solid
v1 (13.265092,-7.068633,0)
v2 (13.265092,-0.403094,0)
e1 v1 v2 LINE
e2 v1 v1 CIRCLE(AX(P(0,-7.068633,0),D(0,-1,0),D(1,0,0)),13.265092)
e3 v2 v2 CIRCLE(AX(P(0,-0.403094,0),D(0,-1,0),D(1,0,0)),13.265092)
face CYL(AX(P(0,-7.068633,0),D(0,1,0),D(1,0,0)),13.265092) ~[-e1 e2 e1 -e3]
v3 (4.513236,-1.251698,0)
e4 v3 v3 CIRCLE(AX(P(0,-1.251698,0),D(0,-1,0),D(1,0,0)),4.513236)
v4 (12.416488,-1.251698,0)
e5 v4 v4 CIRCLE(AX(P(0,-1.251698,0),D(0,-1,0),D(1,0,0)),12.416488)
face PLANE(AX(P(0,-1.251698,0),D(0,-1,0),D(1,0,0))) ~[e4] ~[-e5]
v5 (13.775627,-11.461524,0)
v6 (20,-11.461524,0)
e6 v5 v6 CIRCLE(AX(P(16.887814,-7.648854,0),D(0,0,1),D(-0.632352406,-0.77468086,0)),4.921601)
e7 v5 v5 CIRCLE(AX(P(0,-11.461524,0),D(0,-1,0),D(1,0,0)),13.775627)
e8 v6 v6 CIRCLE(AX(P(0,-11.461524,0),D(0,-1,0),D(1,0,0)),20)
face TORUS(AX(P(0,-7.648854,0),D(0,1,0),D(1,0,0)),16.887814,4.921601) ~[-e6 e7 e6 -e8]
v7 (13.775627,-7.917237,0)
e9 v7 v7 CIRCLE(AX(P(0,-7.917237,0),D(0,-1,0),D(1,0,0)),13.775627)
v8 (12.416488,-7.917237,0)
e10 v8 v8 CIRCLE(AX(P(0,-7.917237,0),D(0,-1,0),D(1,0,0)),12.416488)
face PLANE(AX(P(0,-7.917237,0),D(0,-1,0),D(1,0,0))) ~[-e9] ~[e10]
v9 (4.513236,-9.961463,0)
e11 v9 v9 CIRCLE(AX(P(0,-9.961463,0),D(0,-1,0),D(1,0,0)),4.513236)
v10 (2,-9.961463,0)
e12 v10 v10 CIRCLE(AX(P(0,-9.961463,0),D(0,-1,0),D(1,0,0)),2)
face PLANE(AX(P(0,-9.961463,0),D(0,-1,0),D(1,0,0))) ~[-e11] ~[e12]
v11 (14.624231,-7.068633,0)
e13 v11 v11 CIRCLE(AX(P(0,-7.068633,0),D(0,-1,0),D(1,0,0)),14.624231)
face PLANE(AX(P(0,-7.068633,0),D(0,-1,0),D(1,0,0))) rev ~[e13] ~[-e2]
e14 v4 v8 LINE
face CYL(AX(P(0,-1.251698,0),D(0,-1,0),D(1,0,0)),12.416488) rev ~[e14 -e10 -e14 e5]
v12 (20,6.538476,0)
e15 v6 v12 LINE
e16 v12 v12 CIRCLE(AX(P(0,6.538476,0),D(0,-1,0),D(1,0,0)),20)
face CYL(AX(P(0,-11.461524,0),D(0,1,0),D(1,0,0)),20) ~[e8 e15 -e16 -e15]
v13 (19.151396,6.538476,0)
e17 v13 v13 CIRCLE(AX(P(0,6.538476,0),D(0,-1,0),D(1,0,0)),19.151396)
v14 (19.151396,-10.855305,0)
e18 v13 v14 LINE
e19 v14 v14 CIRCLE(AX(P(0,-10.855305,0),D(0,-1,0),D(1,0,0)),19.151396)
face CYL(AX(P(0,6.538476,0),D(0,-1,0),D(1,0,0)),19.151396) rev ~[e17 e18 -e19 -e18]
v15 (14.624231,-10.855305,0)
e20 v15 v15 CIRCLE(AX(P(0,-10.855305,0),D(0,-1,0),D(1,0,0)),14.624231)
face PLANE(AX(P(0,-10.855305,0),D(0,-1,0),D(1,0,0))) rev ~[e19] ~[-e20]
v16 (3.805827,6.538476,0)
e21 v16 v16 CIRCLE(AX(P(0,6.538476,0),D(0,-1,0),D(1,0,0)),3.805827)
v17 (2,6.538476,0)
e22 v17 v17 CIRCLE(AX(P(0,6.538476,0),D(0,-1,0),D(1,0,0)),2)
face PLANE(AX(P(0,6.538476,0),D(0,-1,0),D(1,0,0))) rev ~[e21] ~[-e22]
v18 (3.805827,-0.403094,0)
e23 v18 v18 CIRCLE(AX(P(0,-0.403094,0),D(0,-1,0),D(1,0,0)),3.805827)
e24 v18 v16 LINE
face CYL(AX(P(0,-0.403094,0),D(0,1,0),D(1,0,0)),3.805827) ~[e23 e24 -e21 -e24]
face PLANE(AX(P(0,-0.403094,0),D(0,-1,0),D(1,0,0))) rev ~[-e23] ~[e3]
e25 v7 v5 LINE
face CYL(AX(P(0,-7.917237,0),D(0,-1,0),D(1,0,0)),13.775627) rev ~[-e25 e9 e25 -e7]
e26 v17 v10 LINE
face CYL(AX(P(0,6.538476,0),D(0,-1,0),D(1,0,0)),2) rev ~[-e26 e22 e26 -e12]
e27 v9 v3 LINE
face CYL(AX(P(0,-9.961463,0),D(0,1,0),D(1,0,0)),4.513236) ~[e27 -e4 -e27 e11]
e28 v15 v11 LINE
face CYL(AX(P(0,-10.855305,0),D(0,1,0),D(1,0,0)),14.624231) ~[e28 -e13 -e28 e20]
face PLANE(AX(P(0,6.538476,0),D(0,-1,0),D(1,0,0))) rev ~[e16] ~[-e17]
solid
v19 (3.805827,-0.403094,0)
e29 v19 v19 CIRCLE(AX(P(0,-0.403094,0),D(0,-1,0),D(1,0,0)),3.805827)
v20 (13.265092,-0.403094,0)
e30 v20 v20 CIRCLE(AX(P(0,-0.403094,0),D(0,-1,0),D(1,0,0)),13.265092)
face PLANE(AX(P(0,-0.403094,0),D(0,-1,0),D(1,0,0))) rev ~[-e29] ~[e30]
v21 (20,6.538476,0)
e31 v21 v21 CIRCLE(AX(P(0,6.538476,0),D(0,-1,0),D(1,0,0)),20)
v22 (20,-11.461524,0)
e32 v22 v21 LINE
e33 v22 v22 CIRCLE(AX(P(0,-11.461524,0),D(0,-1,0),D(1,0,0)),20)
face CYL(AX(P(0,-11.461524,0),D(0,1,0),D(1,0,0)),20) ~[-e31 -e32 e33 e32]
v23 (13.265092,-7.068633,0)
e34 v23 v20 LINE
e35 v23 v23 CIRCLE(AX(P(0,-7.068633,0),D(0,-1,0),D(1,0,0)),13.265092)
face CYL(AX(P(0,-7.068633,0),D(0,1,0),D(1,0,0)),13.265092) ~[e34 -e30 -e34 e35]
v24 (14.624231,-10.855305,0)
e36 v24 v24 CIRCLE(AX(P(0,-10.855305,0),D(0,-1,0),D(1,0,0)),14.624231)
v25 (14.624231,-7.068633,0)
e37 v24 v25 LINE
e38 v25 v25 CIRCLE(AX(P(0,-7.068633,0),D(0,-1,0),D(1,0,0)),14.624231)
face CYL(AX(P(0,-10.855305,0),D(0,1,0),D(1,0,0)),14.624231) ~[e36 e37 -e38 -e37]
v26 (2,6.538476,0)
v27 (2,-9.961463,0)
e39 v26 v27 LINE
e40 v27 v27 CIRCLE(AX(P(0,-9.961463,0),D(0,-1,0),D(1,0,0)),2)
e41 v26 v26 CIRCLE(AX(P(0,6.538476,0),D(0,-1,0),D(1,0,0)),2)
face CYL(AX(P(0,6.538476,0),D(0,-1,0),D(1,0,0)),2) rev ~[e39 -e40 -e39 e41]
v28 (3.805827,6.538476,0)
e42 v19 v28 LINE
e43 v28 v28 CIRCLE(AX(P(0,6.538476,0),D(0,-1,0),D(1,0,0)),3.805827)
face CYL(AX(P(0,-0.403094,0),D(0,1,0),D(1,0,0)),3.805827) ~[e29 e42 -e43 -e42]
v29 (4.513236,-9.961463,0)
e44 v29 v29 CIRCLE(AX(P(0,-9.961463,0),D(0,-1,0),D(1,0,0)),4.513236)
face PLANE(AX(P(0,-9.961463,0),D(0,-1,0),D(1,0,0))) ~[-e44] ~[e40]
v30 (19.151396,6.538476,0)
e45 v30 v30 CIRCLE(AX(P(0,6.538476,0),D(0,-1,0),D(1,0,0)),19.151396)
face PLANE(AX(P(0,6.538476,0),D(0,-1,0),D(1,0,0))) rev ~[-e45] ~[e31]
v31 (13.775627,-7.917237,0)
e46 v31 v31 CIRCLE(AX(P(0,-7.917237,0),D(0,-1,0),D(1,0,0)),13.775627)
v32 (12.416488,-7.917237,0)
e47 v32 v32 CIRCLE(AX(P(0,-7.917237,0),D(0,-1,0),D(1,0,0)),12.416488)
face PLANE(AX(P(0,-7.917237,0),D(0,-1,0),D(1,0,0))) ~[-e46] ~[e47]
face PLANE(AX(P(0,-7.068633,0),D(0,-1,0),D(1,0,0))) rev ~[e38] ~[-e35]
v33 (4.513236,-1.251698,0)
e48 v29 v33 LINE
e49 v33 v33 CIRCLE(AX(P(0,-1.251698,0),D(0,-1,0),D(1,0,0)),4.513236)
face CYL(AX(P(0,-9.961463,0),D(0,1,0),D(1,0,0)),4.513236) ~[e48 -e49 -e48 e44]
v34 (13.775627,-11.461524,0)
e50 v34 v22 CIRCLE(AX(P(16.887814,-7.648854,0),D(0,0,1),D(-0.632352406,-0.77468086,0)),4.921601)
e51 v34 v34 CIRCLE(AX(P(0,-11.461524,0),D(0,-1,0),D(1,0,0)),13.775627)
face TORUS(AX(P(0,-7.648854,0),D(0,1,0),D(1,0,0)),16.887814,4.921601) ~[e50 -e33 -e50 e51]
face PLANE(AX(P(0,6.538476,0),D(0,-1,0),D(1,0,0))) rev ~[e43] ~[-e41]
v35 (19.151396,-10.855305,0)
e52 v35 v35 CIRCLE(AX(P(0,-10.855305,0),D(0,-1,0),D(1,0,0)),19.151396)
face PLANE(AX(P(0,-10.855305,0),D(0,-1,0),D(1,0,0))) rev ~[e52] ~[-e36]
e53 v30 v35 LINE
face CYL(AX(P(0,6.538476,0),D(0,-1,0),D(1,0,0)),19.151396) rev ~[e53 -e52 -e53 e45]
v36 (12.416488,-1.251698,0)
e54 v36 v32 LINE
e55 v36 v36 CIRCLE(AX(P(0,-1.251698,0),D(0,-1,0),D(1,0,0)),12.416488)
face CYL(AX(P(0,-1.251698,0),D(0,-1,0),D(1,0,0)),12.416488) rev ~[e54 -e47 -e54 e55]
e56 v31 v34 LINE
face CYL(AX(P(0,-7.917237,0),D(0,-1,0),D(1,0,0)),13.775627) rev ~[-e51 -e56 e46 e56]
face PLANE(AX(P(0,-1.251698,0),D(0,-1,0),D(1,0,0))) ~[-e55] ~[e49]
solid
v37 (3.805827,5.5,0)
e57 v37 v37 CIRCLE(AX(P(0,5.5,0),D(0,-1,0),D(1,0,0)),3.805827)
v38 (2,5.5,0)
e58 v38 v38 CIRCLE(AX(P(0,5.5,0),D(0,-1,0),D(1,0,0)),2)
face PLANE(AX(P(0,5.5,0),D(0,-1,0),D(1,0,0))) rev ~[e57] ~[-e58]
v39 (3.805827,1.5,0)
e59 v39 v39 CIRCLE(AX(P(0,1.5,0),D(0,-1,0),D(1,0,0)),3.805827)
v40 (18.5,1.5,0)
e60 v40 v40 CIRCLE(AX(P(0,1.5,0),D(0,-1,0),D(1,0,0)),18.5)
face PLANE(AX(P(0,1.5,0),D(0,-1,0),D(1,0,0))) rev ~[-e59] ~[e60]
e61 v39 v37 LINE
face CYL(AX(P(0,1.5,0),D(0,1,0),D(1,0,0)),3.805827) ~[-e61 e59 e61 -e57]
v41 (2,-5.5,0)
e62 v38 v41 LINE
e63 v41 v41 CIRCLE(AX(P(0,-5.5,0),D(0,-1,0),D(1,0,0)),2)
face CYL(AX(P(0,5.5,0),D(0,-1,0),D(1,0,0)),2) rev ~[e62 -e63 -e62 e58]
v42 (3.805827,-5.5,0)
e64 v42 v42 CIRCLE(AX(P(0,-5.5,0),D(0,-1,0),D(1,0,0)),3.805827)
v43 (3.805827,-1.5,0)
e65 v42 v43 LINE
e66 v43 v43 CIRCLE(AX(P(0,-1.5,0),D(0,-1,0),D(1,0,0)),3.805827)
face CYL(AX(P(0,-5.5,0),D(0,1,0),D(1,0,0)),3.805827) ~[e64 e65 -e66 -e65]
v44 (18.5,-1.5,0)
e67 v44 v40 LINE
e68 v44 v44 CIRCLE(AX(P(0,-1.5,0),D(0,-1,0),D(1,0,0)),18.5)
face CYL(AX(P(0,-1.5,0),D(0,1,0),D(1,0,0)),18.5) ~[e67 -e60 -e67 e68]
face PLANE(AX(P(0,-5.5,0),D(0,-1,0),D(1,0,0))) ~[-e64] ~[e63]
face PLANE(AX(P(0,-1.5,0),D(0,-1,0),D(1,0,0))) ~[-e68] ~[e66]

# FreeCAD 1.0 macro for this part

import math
import FreeCAD as App
import Part
import Sketcher

V = App.Vector
Q = App.Units.Quantity


def add_polygon(sketch, points):
    """Adds a closed chain of lines whose ends are joined by coincident constraints."""
    first, n = sketch.GeometryCount, len(points)
    for a, b in zip(points, points[1:] + points[:1]):
        sketch.addGeometry(Part.LineSegment(App.Vector(*a, 0), App.Vector(*b, 0)), False)
    for i in range(n):
        sketch.addConstraint(Sketcher.Constraint("Coincident", first + i, 2, first + (i + 1) % n, 1))

doc = App.newDocument("Part")
params = doc.addObject("Spreadsheet::Sheet", "Params")
for row, (alias, value) in enumerate([
    ("sketch1_height", "18 mm"),
    ("revolution_angle", "360 deg"),
    ("sketch2_height", "18 mm"),
    ("revolution2_angle", "360 deg"),
    ("sketch3_height", "11 mm"),
    ("sketch3_height2", "4 mm"),
    ("revolution3_angle", "360 deg"),
], start=1):
    params.set(f"A{row}", alias)
    params.set(f"B{row}", "=" + value)
    params.setAlias(f"B{row}", alias)

body = doc.addObject("PartDesign::Body", "Body")

sketch1 = doc.addObject("Sketcher::SketchObject", "Sketch")
body.addObject(sketch1)
sketch1.AttachmentSupport = (doc.XY_Plane, [""])
sketch1.MapMode = "FlatFace"
sketch1.addGeometry(Part.LineSegment(V(3.805827, 6.538476, 0), V(2, 6.538476, 0)), False)
sketch1.addGeometry(Part.LineSegment(V(2, 6.538476, 0), V(2, -9.961463, 0)), False)
sketch1.addGeometry(Part.LineSegment(V(2, -9.961463, 0), V(4.513236, -9.961463, 0)), False)
sketch1.addGeometry(Part.LineSegment(V(4.513236, -9.961463, 0), V(4.513236, -1.251698, 0)), False)
sketch1.addGeometry(Part.LineSegment(V(4.513236, -1.251698, 0), V(12.416488, -1.251698, 0)), False)
sketch1.addGeometry(Part.LineSegment(V(12.416488, -1.251698, 0), V(12.416488, -7.917237, 0)), False)
sketch1.addGeometry(Part.LineSegment(V(12.416488, -7.917237, 0), V(13.775627, -7.917237, 0)), False)
sketch1.addGeometry(Part.LineSegment(V(13.775627, -7.917237, 0), V(13.775627, -11.461524, 0)), False)
sketch1.addGeometry(Part.ArcOfCircle(Part.Circle(V(16.887814, -7.648854, 0), V(0, 0, 1), 4.921601), math.radians(-129.223893), math.radians(-50.776107)), False)
sketch1.addGeometry(Part.LineSegment(V(20, -11.461524, 0), V(20, 6.538476, 0)), False)
sketch1.addGeometry(Part.LineSegment(V(20, 6.538476, 0), V(19.151396, 6.538476, 0)), False)
sketch1.addGeometry(Part.LineSegment(V(19.151396, 6.538476, 0), V(19.151396, -10.855305, 0)), False)
sketch1.addGeometry(Part.LineSegment(V(19.151396, -10.855305, 0), V(14.624231, -10.855305, 0)), False)
sketch1.addGeometry(Part.LineSegment(V(14.624231, -10.855305, 0), V(14.624231, -7.068633, 0)), False)
sketch1.addGeometry(Part.LineSegment(V(14.624231, -7.068633, 0), V(13.265092, -7.068633, 0)), False)
sketch1.addGeometry(Part.LineSegment(V(13.265092, -7.068633, 0), V(13.265092, -0.403094, 0)), False)
sketch1.addGeometry(Part.LineSegment(V(13.265092, -0.403094, 0), V(3.805827, -0.403094, 0)), False)
sketch1.addGeometry(Part.LineSegment(V(3.805827, -0.403094, 0), V(3.805827, 6.538476, 0)), False)
sketch1.addConstraint(Sketcher.Constraint("Coincident", 0, 2, 1, 1))
sketch1.addConstraint(Sketcher.Constraint("Coincident", 1, 2, 2, 1))
sketch1.addConstraint(Sketcher.Constraint("Coincident", 2, 2, 3, 1))
sketch1.addConstraint(Sketcher.Constraint("Coincident", 3, 2, 4, 1))
sketch1.addConstraint(Sketcher.Constraint("Coincident", 4, 2, 5, 1))
sketch1.addConstraint(Sketcher.Constraint("Coincident", 5, 2, 6, 1))
sketch1.addConstraint(Sketcher.Constraint("Coincident", 6, 2, 7, 1))
sketch1.addConstraint(Sketcher.Constraint("Coincident", 7, 2, 8, 1))
sketch1.addConstraint(Sketcher.Constraint("Coincident", 8, 2, 9, 1))
sketch1.addConstraint(Sketcher.Constraint("Coincident", 9, 2, 10, 1))
sketch1.addConstraint(Sketcher.Constraint("Coincident", 10, 2, 11, 1))
sketch1.addConstraint(Sketcher.Constraint("Coincident", 11, 2, 12, 1))
sketch1.addConstraint(Sketcher.Constraint("Coincident", 12, 2, 13, 1))
sketch1.addConstraint(Sketcher.Constraint("Coincident", 13, 2, 14, 1))
sketch1.addConstraint(Sketcher.Constraint("Coincident", 14, 2, 15, 1))
sketch1.addConstraint(Sketcher.Constraint("Coincident", 15, 2, 16, 1))
sketch1.addConstraint(Sketcher.Constraint("Coincident", 16, 2, 17, 1))
sketch1.addConstraint(Sketcher.Constraint("Coincident", 17, 2, 0, 1))
sketch1.addConstraint(Sketcher.Constraint("Horizontal", 0))
sketch1.addConstraint(Sketcher.Constraint("Vertical", 1))
sketch1.addConstraint(Sketcher.Constraint("Horizontal", 2))
sketch1.addConstraint(Sketcher.Constraint("Vertical", 3))
sketch1.addConstraint(Sketcher.Constraint("Horizontal", 4))
sketch1.addConstraint(Sketcher.Constraint("Vertical", 5))
sketch1.addConstraint(Sketcher.Constraint("Horizontal", 6))
sketch1.addConstraint(Sketcher.Constraint("Vertical", 7))
sketch1.addConstraint(Sketcher.Constraint("Vertical", 9))
sketch1.addConstraint(Sketcher.Constraint("Horizontal", 10))
sketch1.addConstraint(Sketcher.Constraint("Vertical", 11))
sketch1.addConstraint(Sketcher.Constraint("Horizontal", 12))
sketch1.addConstraint(Sketcher.Constraint("Vertical", 13))
sketch1.addConstraint(Sketcher.Constraint("Horizontal", 14))
sketch1.addConstraint(Sketcher.Constraint("Vertical", 15))
sketch1.addConstraint(Sketcher.Constraint("Horizontal", 16))
sketch1.addConstraint(Sketcher.Constraint("Vertical", 17))
sketch1.addConstraint(Sketcher.Constraint("Horizontal", 7, 2, 8, 2))
sketch1.addConstraint(Sketcher.Constraint("Horizontal", 0, 2, 9, 2))
sketch1.addConstraint(Sketcher.Constraint("Equal", 6, 14))
sketch1.addConstraint(Sketcher.Constraint("Equal", 5, 15))
sketch1.addConstraint(Sketcher.Constraint("DistanceY", 9, 1, 9, 2, Q("18 mm")))
sketch1.addConstraint(Sketcher.Constraint("DistanceX", -1, 1, 0, 2, Q("2 mm")))
sketch1.addConstraint(Sketcher.Constraint("DistanceX", -1, 1, 8, 2, Q("20 mm")))
sketch1.addConstraint(Sketcher.Constraint("Radius", 8, Q("4.921601 mm")))
sketch1.addConstraint(Sketcher.Constraint("DistanceX", 4, 1, 4, 2, Q("7.903252 mm")))
sketch1.addConstraint(Sketcher.Constraint("DistanceX", 6, 1, 6, 2, Q("1.359139 mm")))
sketch1.addConstraint(Sketcher.Constraint("DistanceY", 1, 2, 1, 1, Q("16.499939 mm")))
sketch1.addConstraint(Sketcher.Constraint("DistanceY", 5, 2, 5, 1, Q("6.665539 mm")))
sketch1.addConstraint(Sketcher.Constraint("DistanceY", 11, 2, 11, 1, Q("17.393781 mm")))
sketch1.addConstraint(Sketcher.Constraint("DistanceY", 13, 1, 13, 2, Q("3.786672 mm")))
sketch1.addConstraint(Sketcher.Constraint("DistanceX", 0, 2, 0, 1, Q("1.805827 mm")))
sketch1.addConstraint(Sketcher.Constraint("DistanceX", 2, 1, 2, 2, Q("2.513236 mm")))
sketch1.addConstraint(Sketcher.Constraint("DistanceX", 10, 2, 10, 1, Q("0.848604 mm")))
sketch1.addConstraint(Sketcher.Constraint("DistanceX", 12, 2, 12, 1, Q("4.527165 mm")))
sketch1.addConstraint(Sketcher.Constraint("DistanceY", 3, 1, 3, 2, Q("8.709765 mm")))
sketch1.addConstraint(Sketcher.Constraint("DistanceY", 8, 3, -1, 1, Q("7.648854 mm")))
sketch1.setExpression("Constraints[39]", "Params.sketch1_height")
revolution = doc.addObject("PartDesign::Revolution", "Revolution")
body.addObject(revolution)
revolution.Profile = sketch1
revolution.ReferenceAxis = (sketch1, ["V_Axis"])
revolution.setExpression("Angle", "Params.revolution_angle")
body2 = doc.addObject("PartDesign::Body", "Body001")

sketch2 = doc.addObject("Sketcher::SketchObject", "Sketch001")
body2.addObject(sketch2)
sketch2.AttachmentSupport = (doc.getObject("XY_Plane001"), [""])
sketch2.MapMode = "FlatFace"
sketch2.addGeometry(Part.LineSegment(V(3.805827, 6.538476, 0), V(2, 6.538476, 0)), False)
sketch2.addGeometry(Part.LineSegment(V(2, 6.538476, 0), V(2, -9.961463, 0)), False)
sketch2.addGeometry(Part.LineSegment(V(2, -9.961463, 0), V(4.513236, -9.961463, 0)), False)
sketch2.addGeometry(Part.LineSegment(V(4.513236, -9.961463, 0), V(4.513236, -1.251698, 0)), False)
sketch2.addGeometry(Part.LineSegment(V(4.513236, -1.251698, 0), V(12.416488, -1.251698, 0)), False)
sketch2.addGeometry(Part.LineSegment(V(12.416488, -1.251698, 0), V(12.416488, -7.917237, 0)), False)
sketch2.addGeometry(Part.LineSegment(V(12.416488, -7.917237, 0), V(13.775627, -7.917237, 0)), False)
sketch2.addGeometry(Part.LineSegment(V(13.775627, -7.917237, 0), V(13.775627, -11.461524, 0)), False)
sketch2.addGeometry(Part.ArcOfCircle(Part.Circle(V(16.887814, -7.648854, 0), V(0, 0, 1), 4.921601), math.radians(-129.223893), math.radians(-50.776107)), False)
sketch2.addGeometry(Part.LineSegment(V(20, -11.461524, 0), V(20, 6.538476, 0)), False)
sketch2.addGeometry(Part.LineSegment(V(20, 6.538476, 0), V(19.151396, 6.538476, 0)), False)
sketch2.addGeometry(Part.LineSegment(V(19.151396, 6.538476, 0), V(19.151396, -10.855305, 0)), False)
sketch2.addGeometry(Part.LineSegment(V(19.151396, -10.855305, 0), V(14.624231, -10.855305, 0)), False)
sketch2.addGeometry(Part.LineSegment(V(14.624231, -10.855305, 0), V(14.624231, -7.068633, 0)), False)
sketch2.addGeometry(Part.LineSegment(V(14.624231, -7.068633, 0), V(13.265092, -7.068633, 0)), False)
sketch2.addGeometry(Part.LineSegment(V(13.265092, -7.068633, 0), V(13.265092, -0.403094, 0)), False)
sketch2.addGeometry(Part.LineSegment(V(13.265092, -0.403094, 0), V(3.805827, -0.403094, 0)), False)
sketch2.addGeometry(Part.LineSegment(V(3.805827, -0.403094, 0), V(3.805827, 6.538476, 0)), False)
sketch2.addConstraint(Sketcher.Constraint("Coincident", 0, 2, 1, 1))
sketch2.addConstraint(Sketcher.Constraint("Coincident", 1, 2, 2, 1))
sketch2.addConstraint(Sketcher.Constraint("Coincident", 2, 2, 3, 1))
sketch2.addConstraint(Sketcher.Constraint("Coincident", 3, 2, 4, 1))
sketch2.addConstraint(Sketcher.Constraint("Coincident", 4, 2, 5, 1))
sketch2.addConstraint(Sketcher.Constraint("Coincident", 5, 2, 6, 1))
sketch2.addConstraint(Sketcher.Constraint("Coincident", 6, 2, 7, 1))
sketch2.addConstraint(Sketcher.Constraint("Coincident", 7, 2, 8, 1))
sketch2.addConstraint(Sketcher.Constraint("Coincident", 8, 2, 9, 1))
sketch2.addConstraint(Sketcher.Constraint("Coincident", 9, 2, 10, 1))
sketch2.addConstraint(Sketcher.Constraint("Coincident", 10, 2, 11, 1))
sketch2.addConstraint(Sketcher.Constraint("Coincident", 11, 2, 12, 1))
sketch2.addConstraint(Sketcher.Constraint("Coincident", 12, 2, 13, 1))
sketch2.addConstraint(Sketcher.Constraint("Coincident", 13, 2, 14, 1))
sketch2.addConstraint(Sketcher.Constraint("Coincident", 14, 2, 15, 1))
sketch2.addConstraint(Sketcher.Constraint("Coincident", 15, 2, 16, 1))
sketch2.addConstraint(Sketcher.Constraint("Coincident", 16, 2, 17, 1))
sketch2.addConstraint(Sketcher.Constraint("Coincident", 17, 2, 0, 1))
sketch2.addConstraint(Sketcher.Constraint("Horizontal", 0))
sketch2.addConstraint(Sketcher.Constraint("Vertical", 1))
sketch2.addConstraint(Sketcher.Constraint("Horizontal", 2))
sketch2.addConstraint(Sketcher.Constraint("Vertical", 3))
sketch2.addConstraint(Sketcher.Constraint("Horizontal", 4))
sketch2.addConstraint(Sketcher.Constraint("Vertical", 5))
sketch2.addConstraint(Sketcher.Constraint("Horizontal", 6))
sketch2.addConstraint(Sketcher.Constraint("Vertical", 7))
sketch2.addConstraint(Sketcher.Constraint("Vertical", 9))
sketch2.addConstraint(Sketcher.Constraint("Horizontal", 10))
sketch2.addConstraint(Sketcher.Constraint("Vertical", 11))
sketch2.addConstraint(Sketcher.Constraint("Horizontal", 12))
sketch2.addConstraint(Sketcher.Constraint("Vertical", 13))
sketch2.addConstraint(Sketcher.Constraint("Horizontal", 14))
sketch2.addConstraint(Sketcher.Constraint("Vertical", 15))
sketch2.addConstraint(Sketcher.Constraint("Horizontal", 16))
sketch2.addConstraint(Sketcher.Constraint("Vertical", 17))
sketch2.addConstraint(Sketcher.Constraint("Horizontal", 7, 2, 8, 2))
sketch2.addConstraint(Sketcher.Constraint("Horizontal", 0, 2, 9, 2))
sketch2.addConstraint(Sketcher.Constraint("Equal", 6, 14))
sketch2.addConstraint(Sketcher.Constraint("Equal", 5, 15))
sketch2.addConstraint(Sketcher.Constraint("DistanceY", 9, 1, 9, 2, Q("18 mm")))
sketch2.addConstraint(Sketcher.Constraint("DistanceX", -1, 1, 0, 2, Q("2 mm")))
sketch2.addConstraint(Sketcher.Constraint("DistanceX", -1, 1, 8, 2, Q("20 mm")))
sketch2.addConstraint(Sketcher.Constraint("Radius", 8, Q("4.921601 mm")))
sketch2.addConstraint(Sketcher.Constraint("DistanceX", 4, 1, 4, 2, Q("7.903252 mm")))
sketch2.addConstraint(Sketcher.Constraint("DistanceX", 6, 1, 6, 2, Q("1.359139 mm")))
sketch2.addConstraint(Sketcher.Constraint("DistanceY", 1, 2, 1, 1, Q("16.499939 mm")))
sketch2.addConstraint(Sketcher.Constraint("DistanceY", 5, 2, 5, 1, Q("6.665539 mm")))
sketch2.addConstraint(Sketcher.Constraint("DistanceY", 11, 2, 11, 1, Q("17.393781 mm")))
sketch2.addConstraint(Sketcher.Constraint("DistanceY", 13, 1, 13, 2, Q("3.786672 mm")))
sketch2.addConstraint(Sketcher.Constraint("DistanceX", 0, 2, 0, 1, Q("1.805827 mm")))
sketch2.addConstraint(Sketcher.Constraint("DistanceX", 2, 1, 2, 2, Q("2.513236 mm")))
sketch2.addConstraint(Sketcher.Constraint("DistanceX", 10, 2, 10, 1, Q("0.848604 mm")))
sketch2.addConstraint(Sketcher.Constraint("DistanceX", 12, 2, 12, 1, Q("4.527165 mm")))
sketch2.addConstraint(Sketcher.Constraint("DistanceY", 3, 1, 3, 2, Q("8.709765 mm")))
sketch2.addConstraint(Sketcher.Constraint("DistanceY", 8, 3, -1, 1, Q("7.648854 mm")))
sketch2.setExpression("Constraints[39]", "Params.sketch2_height")
revolution2 = doc.addObject("PartDesign::Revolution", "Revolution001")
body2.addObject(revolution2)
revolution2.Profile = sketch2
revolution2.ReferenceAxis = (sketch2, ["V_Axis"])
revolution2.setExpression("Angle", "Params.revolution2_angle")
body3 = doc.addObject("PartDesign::Body", "Body002")

sketch3 = doc.addObject("Sketcher::SketchObject", "Sketch002")
body3.addObject(sketch3)
sketch3.AttachmentSupport = (doc.getObject("XY_Plane002"), [""])
sketch3.MapMode = "FlatFace"
add_polygon(sketch3, [(3.805827, 5.5), (2, 5.5), (2, -5.5), (3.805827, -5.5), (3.805827, -1.5), (18.5, -1.5), (18.5, 1.5), (3.805827, 1.5)])
sketch3.addConstraint(Sketcher.Constraint("Horizontal", 0))
sketch3.addConstraint(Sketcher.Constraint("Vertical", 1))
sketch3.addConstraint(Sketcher.Constraint("Horizontal", 2))
sketch3.addConstraint(Sketcher.Constraint("Vertical", 3))
sketch3.addConstraint(Sketcher.Constraint("Horizontal", 4))
sketch3.addConstraint(Sketcher.Constraint("Vertical", 5))
sketch3.addConstraint(Sketcher.Constraint("Horizontal", 6))
sketch3.addConstraint(Sketcher.Constraint("Vertical", 7))
sketch3.addConstraint(Sketcher.Constraint("Symmetric", 3, 2, 6, 2, -1))
sketch3.addConstraint(Sketcher.Constraint("Equal", 3, 7))
sketch3.addConstraint(Sketcher.Constraint("DistanceY", 1, 2, 1, 1, Q("11 mm")))
sketch3.addConstraint(Sketcher.Constraint("DistanceY", 3, 1, 3, 2, Q("4 mm")))
sketch3.addConstraint(Sketcher.Constraint("DistanceX", -1, 1, 0, 2, Q("2 mm")))
sketch3.addConstraint(Sketcher.Constraint("DistanceX", -1, 1, 4, 2, Q("18.5 mm")))
sketch3.addConstraint(Sketcher.Constraint("DistanceX", 0, 2, 0, 1, Q("1.805827 mm")))
sketch3.setExpression("Constraints[18]", "Params.sketch3_height")
sketch3.setExpression("Constraints[19]", "Params.sketch3_height2")
revolution3 = doc.addObject("PartDesign::Revolution", "Revolution002")
body3.addObject(revolution3)
revolution3.Profile = sketch3
revolution3.ReferenceAxis = (sketch3, ["V_Axis"])
revolution3.setExpression("Angle", "Params.revolution3_angle")

doc.recompute()
